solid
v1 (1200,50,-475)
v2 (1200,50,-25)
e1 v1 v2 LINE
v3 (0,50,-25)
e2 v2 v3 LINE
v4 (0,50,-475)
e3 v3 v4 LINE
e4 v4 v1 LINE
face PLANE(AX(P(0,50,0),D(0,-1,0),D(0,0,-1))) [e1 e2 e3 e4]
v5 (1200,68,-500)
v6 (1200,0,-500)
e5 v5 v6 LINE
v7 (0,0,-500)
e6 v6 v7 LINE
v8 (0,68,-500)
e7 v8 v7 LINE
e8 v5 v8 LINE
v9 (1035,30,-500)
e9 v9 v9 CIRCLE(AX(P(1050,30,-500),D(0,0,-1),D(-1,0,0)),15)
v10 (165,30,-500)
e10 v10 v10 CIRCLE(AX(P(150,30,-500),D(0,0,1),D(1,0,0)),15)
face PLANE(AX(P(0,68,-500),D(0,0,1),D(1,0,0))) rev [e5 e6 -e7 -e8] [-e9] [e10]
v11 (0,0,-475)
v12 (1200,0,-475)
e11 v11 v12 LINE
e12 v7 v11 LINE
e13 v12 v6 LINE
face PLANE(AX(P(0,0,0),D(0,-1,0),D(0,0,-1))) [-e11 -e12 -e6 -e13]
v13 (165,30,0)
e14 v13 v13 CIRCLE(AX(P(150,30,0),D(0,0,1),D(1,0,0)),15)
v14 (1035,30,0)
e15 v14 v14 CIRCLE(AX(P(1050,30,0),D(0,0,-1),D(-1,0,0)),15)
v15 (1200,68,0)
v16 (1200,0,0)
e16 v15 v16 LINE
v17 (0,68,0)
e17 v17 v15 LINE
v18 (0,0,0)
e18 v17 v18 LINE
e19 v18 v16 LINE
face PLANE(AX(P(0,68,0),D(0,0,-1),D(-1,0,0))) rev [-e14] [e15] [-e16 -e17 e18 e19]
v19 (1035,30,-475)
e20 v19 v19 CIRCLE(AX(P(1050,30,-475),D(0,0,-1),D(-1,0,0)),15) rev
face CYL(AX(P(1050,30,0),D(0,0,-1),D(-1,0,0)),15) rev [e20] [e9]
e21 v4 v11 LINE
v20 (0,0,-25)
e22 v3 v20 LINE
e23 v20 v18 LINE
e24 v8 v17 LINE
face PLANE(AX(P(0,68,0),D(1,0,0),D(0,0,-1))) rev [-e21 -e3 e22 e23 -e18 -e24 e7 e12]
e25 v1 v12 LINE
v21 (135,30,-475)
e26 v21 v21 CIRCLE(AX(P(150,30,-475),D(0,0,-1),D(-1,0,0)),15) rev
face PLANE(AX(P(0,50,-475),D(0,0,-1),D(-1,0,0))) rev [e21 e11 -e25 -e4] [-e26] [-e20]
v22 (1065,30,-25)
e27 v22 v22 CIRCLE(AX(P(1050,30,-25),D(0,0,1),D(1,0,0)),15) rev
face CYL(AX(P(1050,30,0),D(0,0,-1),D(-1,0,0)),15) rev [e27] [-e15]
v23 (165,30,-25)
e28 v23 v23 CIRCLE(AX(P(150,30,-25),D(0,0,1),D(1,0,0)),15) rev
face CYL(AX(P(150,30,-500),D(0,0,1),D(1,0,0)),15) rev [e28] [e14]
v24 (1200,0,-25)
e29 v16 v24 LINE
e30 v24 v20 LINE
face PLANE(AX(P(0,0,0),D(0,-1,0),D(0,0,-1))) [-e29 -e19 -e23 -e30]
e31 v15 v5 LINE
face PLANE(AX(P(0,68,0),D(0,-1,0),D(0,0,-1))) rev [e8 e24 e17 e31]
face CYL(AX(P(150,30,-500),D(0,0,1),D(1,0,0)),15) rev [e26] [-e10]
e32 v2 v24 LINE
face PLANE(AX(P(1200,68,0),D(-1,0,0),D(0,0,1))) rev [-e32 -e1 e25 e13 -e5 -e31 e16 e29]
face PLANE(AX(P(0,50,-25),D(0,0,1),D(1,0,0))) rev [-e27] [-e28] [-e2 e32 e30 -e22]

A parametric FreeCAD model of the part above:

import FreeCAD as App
import Part
import Sketcher

V = App.Vector


def add_polygon(sketch, points):
    """Adds a closed chain of lines whose ends are joined by coincident constraints."""
    first, n = sketch.GeometryCount, len(points)
    for a, b in zip(points, points[1:] + points[:1]):
        sketch.addGeometry(Part.LineSegment(App.Vector(*a, 0), App.Vector(*b, 0)), False)
    for i in range(n):
        sketch.addConstraint(Sketcher.Constraint("Coincident", first + i, 2, first + (i + 1) % n, 1))

doc = App.newDocument("Part")
body = doc.addObject("PartDesign::Body", "Body")

sketch1 = body.newObject("Sketcher::SketchObject", "Sketch")
sketch1.AttachmentSupport = (doc.getObject("XZ_Plane"), [""])
sketch1.MapMode = "FlatFace"
add_polygon(sketch1, [(0, -500), (0, 0), (1200, 0), (1200, -500)])
sketch1.addConstraint(Sketcher.Constraint("Vertical", 0))
sketch1.addConstraint(Sketcher.Constraint("Horizontal", 1))
sketch1.addConstraint(Sketcher.Constraint("Vertical", 2))
sketch1.addConstraint(Sketcher.Constraint("Horizontal", 3))
sketch1.addConstraint(Sketcher.Constraint("Coincident", 0, 2, -1, 1))
sketch1.addConstraint(Sketcher.Constraint("DistanceX", 1, 1, 1, 2, 1200.0))
sketch1.addConstraint(Sketcher.Constraint("DistanceY", 0, 1, 0, 2, 500.0))
pad1 = body.newObject("PartDesign::Pad", "Pad")
pad1.Profile = sketch1
pad1.Length = 68
pad1.Reversed = True

sketch2 = body.newObject("Sketcher::SketchObject", "Sketch001")
sketch2.AttachmentSupport = (doc.getObject("XY_Plane"), [""])
sketch2.MapMode = "FlatFace"
sketch2.addGeometry(Part.Circle(V(150, 30, 0), V(0, 0, 1), 15), False)
sketch2.addConstraint(Sketcher.Constraint("Diameter", 0, 30.0))
sketch2.addConstraint(Sketcher.Constraint("DistanceX", -1, 1, 0, 3, 150.0))
sketch2.addConstraint(Sketcher.Constraint("DistanceY", -1, 1, 0, 3, 30.0))
pocket1 = body.newObject("PartDesign::Pocket", "Pocket")
pocket1.Profile = sketch2
pocket1.Type = "ThroughAll"

sketch3 = body.newObject("Sketcher::SketchObject", "Sketch002")
sketch3.AttachmentSupport = (doc.getObject("XY_Plane"), [""])
sketch3.MapMode = "FlatFace"
sketch3.AttachmentOffset = App.Placement(V(0, 0, -500), App.Rotation())
sketch3.addGeometry(Part.Circle(V(1050, 30, 0), V(0, 0, 1), 15), False)
sketch3.addConstraint(Sketcher.Constraint("Diameter", 0, 30.0))
sketch3.addConstraint(Sketcher.Constraint("DistanceX", -1, 1, 0, 3, 1050.0))
sketch3.addConstraint(Sketcher.Constraint("DistanceY", -1, 1, 0, 3, 30.0))
pocket2 = body.newObject("PartDesign::Pocket", "Pocket001")
pocket2.Profile = sketch3
pocket2.Type = "ThroughAll"
pocket2.Reversed = True

sketch4 = body.newObject("Sketcher::SketchObject", "Sketch003")
sketch4.AttachmentSupport = (doc.getObject("XZ_Plane"), [""])
sketch4.MapMode = "FlatFace"
add_polygon(sketch4, [(0, -25), (0, -475), (1200, -475), (1200, -25)])
sketch4.addConstraint(Sketcher.Constraint("Vertical", 0))
sketch4.addConstraint(Sketcher.Constraint("Horizontal", 1))
sketch4.addConstraint(Sketcher.Constraint("Vertical", 2))
sketch4.addConstraint(Sketcher.Constraint("Horizontal", 3))
sketch4.addConstraint(Sketcher.Constraint("PointOnObject", 0, 2, -2))
sketch4.addConstraint(Sketcher.Constraint("DistanceX", 1, 1, 1, 2, 1200.0))
sketch4.addConstraint(Sketcher.Constraint("DistanceY", 0, 2, 0, 1, 450.0))
sketch4.addConstraint(Sketcher.Constraint("DistanceY", 0, 2, -1, 1, 475.0))
pocket3 = body.newObject("PartDesign::Pocket", "Pocket002")
pocket3.Profile = sketch4
pocket3.Length = 50

doc.recompute()
